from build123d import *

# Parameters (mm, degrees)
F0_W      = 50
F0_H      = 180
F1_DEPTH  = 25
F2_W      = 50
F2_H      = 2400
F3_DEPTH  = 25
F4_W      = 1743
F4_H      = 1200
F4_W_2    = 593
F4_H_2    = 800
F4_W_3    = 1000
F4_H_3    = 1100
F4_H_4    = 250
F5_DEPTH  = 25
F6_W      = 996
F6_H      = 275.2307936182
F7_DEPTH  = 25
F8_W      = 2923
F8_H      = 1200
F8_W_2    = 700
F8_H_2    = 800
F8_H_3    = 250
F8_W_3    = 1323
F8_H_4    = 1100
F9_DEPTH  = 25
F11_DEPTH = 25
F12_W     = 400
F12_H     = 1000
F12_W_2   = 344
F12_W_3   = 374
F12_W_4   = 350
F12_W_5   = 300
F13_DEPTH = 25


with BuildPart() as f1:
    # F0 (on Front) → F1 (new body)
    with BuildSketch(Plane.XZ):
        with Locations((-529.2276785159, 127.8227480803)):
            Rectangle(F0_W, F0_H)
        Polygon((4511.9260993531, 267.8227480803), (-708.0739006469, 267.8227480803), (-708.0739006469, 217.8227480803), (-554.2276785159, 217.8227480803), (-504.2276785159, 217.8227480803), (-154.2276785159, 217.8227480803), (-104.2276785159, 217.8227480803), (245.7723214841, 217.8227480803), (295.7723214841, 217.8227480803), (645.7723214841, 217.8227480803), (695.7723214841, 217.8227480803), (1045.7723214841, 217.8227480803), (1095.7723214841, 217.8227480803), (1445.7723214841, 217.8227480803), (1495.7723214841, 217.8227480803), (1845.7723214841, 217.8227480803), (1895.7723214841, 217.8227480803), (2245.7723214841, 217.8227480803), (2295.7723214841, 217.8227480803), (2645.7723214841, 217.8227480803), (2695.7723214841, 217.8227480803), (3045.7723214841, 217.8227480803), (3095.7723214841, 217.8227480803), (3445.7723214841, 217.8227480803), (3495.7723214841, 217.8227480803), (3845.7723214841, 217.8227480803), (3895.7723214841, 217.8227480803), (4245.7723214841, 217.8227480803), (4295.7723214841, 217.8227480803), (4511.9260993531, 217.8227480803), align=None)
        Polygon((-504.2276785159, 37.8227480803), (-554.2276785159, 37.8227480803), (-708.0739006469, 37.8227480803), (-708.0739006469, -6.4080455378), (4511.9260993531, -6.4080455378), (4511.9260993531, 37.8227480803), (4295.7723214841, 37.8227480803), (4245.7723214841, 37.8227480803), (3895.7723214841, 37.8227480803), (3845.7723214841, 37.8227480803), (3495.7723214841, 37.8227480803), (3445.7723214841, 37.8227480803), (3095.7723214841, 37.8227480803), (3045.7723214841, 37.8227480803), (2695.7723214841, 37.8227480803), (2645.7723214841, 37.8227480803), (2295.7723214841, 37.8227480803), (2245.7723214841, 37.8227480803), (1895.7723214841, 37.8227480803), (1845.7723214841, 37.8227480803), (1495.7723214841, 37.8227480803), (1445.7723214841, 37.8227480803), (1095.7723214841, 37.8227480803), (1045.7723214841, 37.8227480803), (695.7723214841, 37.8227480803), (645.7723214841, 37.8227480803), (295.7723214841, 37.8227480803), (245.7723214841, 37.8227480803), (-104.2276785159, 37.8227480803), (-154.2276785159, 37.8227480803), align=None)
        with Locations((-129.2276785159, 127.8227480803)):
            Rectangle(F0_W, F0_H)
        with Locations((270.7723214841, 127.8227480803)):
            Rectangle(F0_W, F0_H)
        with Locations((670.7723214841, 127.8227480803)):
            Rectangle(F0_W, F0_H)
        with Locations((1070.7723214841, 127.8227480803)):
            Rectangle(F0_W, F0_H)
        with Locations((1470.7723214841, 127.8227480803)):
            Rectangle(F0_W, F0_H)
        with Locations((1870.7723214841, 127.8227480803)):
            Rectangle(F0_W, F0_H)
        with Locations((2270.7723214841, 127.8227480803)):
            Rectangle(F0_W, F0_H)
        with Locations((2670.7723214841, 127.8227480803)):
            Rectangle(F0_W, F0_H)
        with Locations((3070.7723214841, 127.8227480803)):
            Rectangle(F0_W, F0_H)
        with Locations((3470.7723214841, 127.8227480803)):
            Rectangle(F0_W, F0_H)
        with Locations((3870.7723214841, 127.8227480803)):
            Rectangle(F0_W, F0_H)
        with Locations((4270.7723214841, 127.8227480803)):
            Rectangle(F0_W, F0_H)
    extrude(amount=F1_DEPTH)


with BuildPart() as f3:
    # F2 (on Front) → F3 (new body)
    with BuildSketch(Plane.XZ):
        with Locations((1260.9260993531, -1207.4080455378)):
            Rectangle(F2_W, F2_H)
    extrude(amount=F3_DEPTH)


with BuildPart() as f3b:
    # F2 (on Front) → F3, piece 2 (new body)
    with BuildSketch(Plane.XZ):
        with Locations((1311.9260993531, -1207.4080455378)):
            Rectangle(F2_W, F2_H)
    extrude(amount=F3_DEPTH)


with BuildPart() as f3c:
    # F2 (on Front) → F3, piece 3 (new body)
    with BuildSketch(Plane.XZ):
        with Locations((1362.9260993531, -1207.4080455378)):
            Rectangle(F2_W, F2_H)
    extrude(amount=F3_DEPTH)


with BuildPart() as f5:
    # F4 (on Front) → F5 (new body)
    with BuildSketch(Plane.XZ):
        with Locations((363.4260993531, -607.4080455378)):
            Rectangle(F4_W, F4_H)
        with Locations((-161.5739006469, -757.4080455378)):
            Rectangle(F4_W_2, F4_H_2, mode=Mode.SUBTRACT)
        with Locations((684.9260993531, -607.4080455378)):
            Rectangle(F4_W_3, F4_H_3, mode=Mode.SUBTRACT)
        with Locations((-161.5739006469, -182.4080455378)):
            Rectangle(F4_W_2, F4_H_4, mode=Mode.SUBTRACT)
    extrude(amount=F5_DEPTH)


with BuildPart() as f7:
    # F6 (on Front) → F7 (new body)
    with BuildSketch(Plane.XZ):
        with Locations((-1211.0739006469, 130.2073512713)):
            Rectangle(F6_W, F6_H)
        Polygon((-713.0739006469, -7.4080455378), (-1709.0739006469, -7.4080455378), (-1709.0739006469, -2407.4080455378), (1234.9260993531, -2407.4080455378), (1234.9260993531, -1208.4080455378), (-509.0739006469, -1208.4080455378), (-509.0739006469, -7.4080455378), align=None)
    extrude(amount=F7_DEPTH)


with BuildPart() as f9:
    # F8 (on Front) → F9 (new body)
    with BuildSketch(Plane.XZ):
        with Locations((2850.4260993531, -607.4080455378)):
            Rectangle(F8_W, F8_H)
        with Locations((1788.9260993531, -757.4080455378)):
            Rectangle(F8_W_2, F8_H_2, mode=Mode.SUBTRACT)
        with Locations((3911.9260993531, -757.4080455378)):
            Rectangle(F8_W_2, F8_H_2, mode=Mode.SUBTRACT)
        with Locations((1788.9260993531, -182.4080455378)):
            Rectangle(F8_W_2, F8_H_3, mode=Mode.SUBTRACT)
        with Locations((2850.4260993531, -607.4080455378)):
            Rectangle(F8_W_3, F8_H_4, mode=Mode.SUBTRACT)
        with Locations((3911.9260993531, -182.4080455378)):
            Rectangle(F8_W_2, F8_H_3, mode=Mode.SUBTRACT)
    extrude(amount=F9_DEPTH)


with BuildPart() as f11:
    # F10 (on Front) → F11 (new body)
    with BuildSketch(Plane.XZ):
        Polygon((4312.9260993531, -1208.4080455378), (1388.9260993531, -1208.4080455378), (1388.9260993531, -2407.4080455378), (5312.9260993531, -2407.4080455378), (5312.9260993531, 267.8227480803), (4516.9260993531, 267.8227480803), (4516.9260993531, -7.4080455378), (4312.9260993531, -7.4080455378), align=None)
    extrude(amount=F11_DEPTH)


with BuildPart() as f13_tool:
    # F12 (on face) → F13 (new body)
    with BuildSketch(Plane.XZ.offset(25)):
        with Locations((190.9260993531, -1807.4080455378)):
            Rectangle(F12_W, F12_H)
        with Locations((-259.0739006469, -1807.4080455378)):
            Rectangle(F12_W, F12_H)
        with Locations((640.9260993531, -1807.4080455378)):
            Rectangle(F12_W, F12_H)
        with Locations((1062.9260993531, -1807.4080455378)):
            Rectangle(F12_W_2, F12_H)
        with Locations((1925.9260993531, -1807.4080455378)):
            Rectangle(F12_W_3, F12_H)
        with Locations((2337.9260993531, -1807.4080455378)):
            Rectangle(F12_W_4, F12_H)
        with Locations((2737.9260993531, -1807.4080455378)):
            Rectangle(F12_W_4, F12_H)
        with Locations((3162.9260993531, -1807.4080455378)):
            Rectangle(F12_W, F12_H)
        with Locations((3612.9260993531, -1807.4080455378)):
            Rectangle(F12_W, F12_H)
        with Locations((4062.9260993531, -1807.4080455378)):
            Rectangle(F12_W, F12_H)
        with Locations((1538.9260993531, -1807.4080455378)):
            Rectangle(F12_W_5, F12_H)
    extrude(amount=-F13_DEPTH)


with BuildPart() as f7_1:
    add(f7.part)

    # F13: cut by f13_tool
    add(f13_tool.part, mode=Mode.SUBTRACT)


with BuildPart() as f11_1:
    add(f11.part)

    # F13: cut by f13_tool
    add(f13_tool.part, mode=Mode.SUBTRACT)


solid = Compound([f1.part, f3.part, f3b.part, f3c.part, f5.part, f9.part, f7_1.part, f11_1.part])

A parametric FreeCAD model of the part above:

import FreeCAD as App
import Part
import Sketcher

V = App.Vector
Q = App.Units.Quantity


def add_polygon(sketch, points):
    """Adds a closed chain of lines whose ends are joined by coincident constraints."""
    first, n = sketch.GeometryCount, len(points)
    for a, b in zip(points, points[1:] + points[:1]):
        sketch.addGeometry(Part.LineSegment(App.Vector(*a, 0), App.Vector(*b, 0)), False)
    for i in range(n):
        sketch.addConstraint(Sketcher.Constraint("Coincident", first + i, 2, first + (i + 1) % n, 1))

doc = App.newDocument("Part")
params = doc.addObject("Spreadsheet::Sheet", "Params")
for row, (alias, value) in enumerate([
    ("sketch1_width", "5220 mm"),
    ("sketch1_width2", "350 mm"),
    ("sketch1_height", "180 mm"),
    ("sketch1_height2", "50 mm"),
    ("pad1_length", "25 mm"),
    ("sketch2_width", "50 mm"),
    ("sketch2_height", "2400 mm"),
    ("pad2_length", "25 mm"),
    ("sketch3_width", "50 mm"),
    ("sketch3_height", "2400 mm"),
    ("pad3_length", "25 mm"),
    ("sketch4_width", "50 mm"),
    ("sketch4_height", "2400 mm"),
    ("pad4_length", "25 mm"),
    ("sketch5_width", "1743 mm"),
    ("sketch5_width2", "593 mm"),
    ("sketch5_width3", "1000 mm"),
    ("sketch5_height", "1200 mm"),
    ("sketch5_height2", "800 mm"),
    ("pad5_length", "25 mm"),
    ("sketch6_width", "2944 mm"),
    ("sketch6_width2", "1744 mm"),
    ("sketch6_width3", "204 mm"),
    ("sketch6_height", "1199 mm"),
    ("sketch6_height2", "1201 mm"),
    ("pad6_length", "25 mm"),
    ("sketch7_width", "2923 mm"),
    ("sketch7_width2", "700 mm"),
    ("sketch7_width3", "1323 mm"),
    ("sketch7_height", "1200 mm"),
    ("sketch7_height2", "800 mm"),
    ("pad7_length", "25 mm"),
    ("sketch8_width", "2924 mm"),
    ("sketch8_width2", "3924 mm"),
    ("sketch8_width3", "796 mm"),
    ("sketch8_height", "1199 mm"),
    ("sketch8_height2", "1201 mm"),
    ("pad8_length", "25 mm"),
    ("sketch9_width", "400 mm"),
    ("sketch9_width2", "344 mm"),
    ("sketch9_width3", "374 mm"),
    ("sketch9_width4", "350 mm"),
    ("sketch9_width5", "300 mm"),
    ("pad9_length", "25 mm"),
], start=1):
    params.set(f"A{row}", alias)
    params.set(f"B{row}", "=" + value)
    params.setAlias(f"B{row}", alias)

body = doc.addObject("PartDesign::Body", "Body")

# Sketch on XZ plane
sketch1 = doc.addObject("Sketcher::SketchObject", "Sketch")
body.addObject(sketch1)
sketch1.AttachmentSupport = (doc.XZ_Plane, [""])
sketch1.MapMode = "FlatFace"
add_polygon(sketch1, [(-554.227679, 217.822748), (-554.227679, 37.822748), (-708.073901, 37.822748), (-708.073901, -6.408046), (4511.926099, -6.408046), (4511.926099, 37.822748), (4295.772321, 37.822748), (4295.772321, 217.822748), (4511.926099, 217.822748), (4511.926099, 267.822748), (-708.073901, 267.822748), (-708.073901, 217.822748)])  # lines 0-11
add_polygon(sketch1, [(4245.772321, 37.822748), (3895.772321, 37.822748), (3895.772321, 217.822748), (4245.772321, 217.822748)])  # lines 12-15
add_polygon(sketch1, [(3845.772321, 37.822748), (3495.772321, 37.822748), (3495.772321, 217.822748), (3845.772321, 217.822748)])  # lines 16-19
add_polygon(sketch1, [(3445.772321, 37.822748), (3095.772321, 37.822748), (3095.772321, 217.822748), (3445.772321, 217.822748)])  # lines 20-23
add_polygon(sketch1, [(3045.772321, 37.822748), (2695.772321, 37.822748), (2695.772321, 217.822748), (3045.772321, 217.822748)])  # lines 24-27
add_polygon(sketch1, [(2645.772321, 37.822748), (2295.772321, 37.822748), (2295.772321, 217.822748), (2645.772321, 217.822748)])  # lines 28-31
add_polygon(sketch1, [(2245.772321, 37.822748), (1895.772321, 37.822748), (1895.772321, 217.822748), (2245.772321, 217.822748)])  # lines 32-35
add_polygon(sketch1, [(1845.772321, 37.822748), (1495.772321, 37.822748), (1495.772321, 217.822748), (1845.772321, 217.822748)])  # lines 36-39
add_polygon(sketch1, [(1445.772321, 37.822748), (1095.772321, 37.822748), (1095.772321, 217.822748), (1445.772321, 217.822748)])  # lines 40-43
add_polygon(sketch1, [(1045.772321, 37.822748), (695.772321, 37.822748), (695.772321, 217.822748), (1045.772321, 217.822748)])  # lines 44-47
add_polygon(sketch1, [(645.772321, 37.822748), (295.772321, 37.822748), (295.772321, 217.822748), (645.772321, 217.822748)])  # lines 48-51
add_polygon(sketch1, [(245.772321, 37.822748), (-104.227679, 37.822748), (-104.227679, 217.822748), (245.772321, 217.822748)])  # lines 52-55
add_polygon(sketch1, [(-154.227679, 37.822748), (-504.227679, 37.822748), (-504.227679, 217.822748), (-154.227679, 217.822748)])  # lines 56-59
sketch1.addConstraint([
    Sketcher.Constraint("Vertical", 0),
    Sketcher.Constraint("Horizontal", 1),
    Sketcher.Constraint("Vertical", 2),
    Sketcher.Constraint("Horizontal", 3),
    Sketcher.Constraint("Vertical", 4),
    Sketcher.Constraint("Horizontal", 5),
    Sketcher.Constraint("Vertical", 6),
    Sketcher.Constraint("Horizontal", 7),
    Sketcher.Constraint("Vertical", 8),
    Sketcher.Constraint("Horizontal", 9),
    Sketcher.Constraint("Vertical", 10),
    Sketcher.Constraint("Horizontal", 11),
    Sketcher.Constraint("Horizontal", 12),
    Sketcher.Constraint("Vertical", 13),
    Sketcher.Constraint("Horizontal", 14),
    Sketcher.Constraint("Vertical", 15),
    Sketcher.Constraint("Horizontal", 16),
    Sketcher.Constraint("Vertical", 17),
    Sketcher.Constraint("Horizontal", 18),
    Sketcher.Constraint("Vertical", 19),
    Sketcher.Constraint("Horizontal", 20),
    Sketcher.Constraint("Vertical", 21),
    Sketcher.Constraint("Horizontal", 22),
    Sketcher.Constraint("Vertical", 23),
    Sketcher.Constraint("Horizontal", 24),
    Sketcher.Constraint("Vertical", 25),
    Sketcher.Constraint("Horizontal", 26),
    Sketcher.Constraint("Vertical", 27),
    Sketcher.Constraint("Horizontal", 28),
    Sketcher.Constraint("Vertical", 29),
    Sketcher.Constraint("Horizontal", 30),
    Sketcher.Constraint("Vertical", 31),
    Sketcher.Constraint("Horizontal", 32),
    Sketcher.Constraint("Vertical", 33),
    Sketcher.Constraint("Horizontal", 34),
    Sketcher.Constraint("Vertical", 35),
    Sketcher.Constraint("Horizontal", 36),
    Sketcher.Constraint("Vertical", 37),
    Sketcher.Constraint("Horizontal", 38),
    Sketcher.Constraint("Vertical", 39),
    Sketcher.Constraint("Horizontal", 40),
    Sketcher.Constraint("Vertical", 41),
    Sketcher.Constraint("Horizontal", 42),
    Sketcher.Constraint("Vertical", 43),
    Sketcher.Constraint("Horizontal", 44),
    Sketcher.Constraint("Vertical", 45),
    Sketcher.Constraint("Horizontal", 46),
    Sketcher.Constraint("Vertical", 47),
    Sketcher.Constraint("Horizontal", 48),
    Sketcher.Constraint("Vertical", 49),
    Sketcher.Constraint("Horizontal", 50),
    Sketcher.Constraint("Vertical", 51),
    Sketcher.Constraint("Horizontal", 52),
    Sketcher.Constraint("Vertical", 53),
    Sketcher.Constraint("Horizontal", 54),
    Sketcher.Constraint("Vertical", 55),
    Sketcher.Constraint("Horizontal", 56),
    Sketcher.Constraint("Vertical", 57),
    Sketcher.Constraint("Horizontal", 58),
    Sketcher.Constraint("Vertical", 59),
    Sketcher.Constraint("Horizontal", 1, 2, 4, 2),
    Sketcher.Constraint("Horizontal", 7, 2, 10, 2),
    Sketcher.Constraint("Horizontal", 5, 2, 12, 2),
    Sketcher.Constraint("Horizontal", 11, 2, 13, 2),
    Sketcher.Constraint("Horizontal", 15, 2, 16, 2),
    Sketcher.Constraint("Horizontal", 14, 2, 17, 2),
    Sketcher.Constraint("Horizontal", 19, 2, 20, 2),
    Sketcher.Constraint("Horizontal", 18, 2, 21, 2),
    Sketcher.Constraint("Horizontal", 23, 2, 24, 2),
    Sketcher.Constraint("Horizontal", 22, 2, 25, 2),
    Sketcher.Constraint("Horizontal", 27, 2, 28, 2),
    Sketcher.Constraint("Horizontal", 26, 2, 29, 2),
    Sketcher.Constraint("Horizontal", 31, 2, 32, 2),
    Sketcher.Constraint("Horizontal", 30, 2, 33, 2),
    Sketcher.Constraint("Horizontal", 35, 2, 36, 2),
    Sketcher.Constraint("Horizontal", 34, 2, 37, 2),
    Sketcher.Constraint("Horizontal", 39, 2, 40, 2),
    Sketcher.Constraint("Horizontal", 38, 2, 41, 2),
    Sketcher.Constraint("Horizontal", 43, 2, 44, 2),
    Sketcher.Constraint("Horizontal", 42, 2, 45, 2),
    Sketcher.Constraint("Horizontal", 47, 2, 48, 2),
    Sketcher.Constraint("Horizontal", 46, 2, 49, 2),
    Sketcher.Constraint("Horizontal", 51, 2, 52, 2),
    Sketcher.Constraint("Horizontal", 50, 2, 53, 2),
    Sketcher.Constraint("Horizontal", 55, 2, 56, 2),
    Sketcher.Constraint("Horizontal", 54, 2, 57, 2),
    Sketcher.Constraint("Vertical", 4, 2, 7, 2),
    Sketcher.Constraint("Vertical", 2, 2, 9, 2),
    Sketcher.Constraint("Equal", 14, 16),
    Sketcher.Constraint("Equal", 18, 20),
    Sketcher.Constraint("Equal", 22, 24),
    Sketcher.Constraint("Equal", 26, 28),
    Sketcher.Constraint("Equal", 30, 32),
    Sketcher.Constraint("Equal", 34, 36),
    Sketcher.Constraint("Equal", 38, 40),
    Sketcher.Constraint("Equal", 42, 44),
    Sketcher.Constraint("Equal", 46, 48),
    Sketcher.Constraint("Equal", 50, 52),
    Sketcher.Constraint("Equal", 54, 56),
    Sketcher.Constraint("DistanceX", 3, 1, 3, 2, Q("5220 mm")),
    Sketcher.Constraint("DistanceX", 12, 2, 12, 1, Q("350 mm")),
    Sketcher.Constraint("DistanceY", 0, 2, 0, 1, Q("180 mm")),
    Sketcher.Constraint("DistanceY", 8, 1, 8, 2, Q("50 mm")),
    Sketcher.Constraint("DistanceX", 0, 2, 5, 2, Q("4850 mm")),
    Sketcher.Constraint("DistanceX", 12, 2, 5, 2, Q("400 mm")),
    Sketcher.Constraint("DistanceX", 16, 2, 12, 2, Q("400 mm")),
    Sketcher.Constraint("DistanceX", 20, 2, 16, 2, Q("400 mm")),
    Sketcher.Constraint("DistanceX", 24, 2, 20, 2, Q("400 mm")),
    Sketcher.Constraint("DistanceX", 28, 2, 24, 2, Q("400 mm")),
    Sketcher.Constraint("DistanceX", 32, 2, 28, 2, Q("400 mm")),
    Sketcher.Constraint("DistanceX", 36, 2, 32, 2, Q("400 mm")),
    Sketcher.Constraint("DistanceX", 40, 2, 36, 2, Q("400 mm")),
    Sketcher.Constraint("DistanceX", 44, 2, 40, 2, Q("400 mm")),
    Sketcher.Constraint("DistanceX", 48, 2, 44, 2, Q("400 mm")),
    Sketcher.Constraint("DistanceX", 52, 2, 48, 2, Q("400 mm")),
    Sketcher.Constraint("DistanceX", 0, 2, 56, 2, Q("50 mm")),
    Sketcher.Constraint("DistanceX", 1, 2, -1, 1, Q("708.073901 mm")),
    Sketcher.Constraint("DistanceX", 1, 2, 1, 1, Q("153.846222 mm")),
    Sketcher.Constraint("DistanceY", 2, 2, 2, 1, Q("44.230794 mm")),
    Sketcher.Constraint("DistanceY", -1, 1, 0, 2, Q("37.822748 mm")),
])
sketch1.setExpression("Constraints[159]", "Params.sketch1_width")
sketch1.setExpression("Constraints[160]", "Params.sketch1_width2")
sketch1.setExpression("Constraints[161]", "Params.sketch1_height")
sketch1.setExpression("Constraints[162]", "Params.sketch1_height2")
pad1 = doc.addObject("PartDesign::Pad", "Pad")
body.addObject(pad1)
pad1.Profile = sketch1
pad1.setExpression("Length", "Params.pad1_length")
body2 = doc.addObject("PartDesign::Body", "Body001")

# Sketch on XZ plane
sketch2 = doc.addObject("Sketcher::SketchObject", "Sketch001")
body2.addObject(sketch2)
sketch2.AttachmentSupport = (doc.getObject("XZ_Plane001"), [""])
sketch2.MapMode = "FlatFace"
add_polygon(sketch2, [(1235.926099, -7.408046), (1235.926099, -2407.408046), (1285.926099, -2407.408046), (1285.926099, -7.408046)])  # lines 0-3
sketch2.addConstraint([
    Sketcher.Constraint("Vertical", 0),
    Sketcher.Constraint("Horizontal", 1),
    Sketcher.Constraint("Vertical", 2),
    Sketcher.Constraint("Horizontal", 3),
    Sketcher.Constraint("DistanceX", 1, 1, 1, 2, Q("50 mm")),
    Sketcher.Constraint("DistanceY", 0, 2, 0, 1, Q("2400 mm")),
    Sketcher.Constraint("DistanceX", -1, 1, 0, 2, Q("1235.926099 mm")),
    Sketcher.Constraint("DistanceY", 0, 2, -1, 1, Q("2407.408046 mm")),
])
sketch2.setExpression("Constraints[8]", "Params.sketch2_width")
sketch2.setExpression("Constraints[9]", "Params.sketch2_height")
pad2 = doc.addObject("PartDesign::Pad", "Pad001")
body2.addObject(pad2)
pad2.Profile = sketch2
pad2.setExpression("Length", "Params.pad2_length")
body3 = doc.addObject("PartDesign::Body", "Body002")

# Sketch on XZ plane
sketch3 = doc.addObject("Sketcher::SketchObject", "Sketch002")
body3.addObject(sketch3)
sketch3.AttachmentSupport = (doc.getObject("XZ_Plane002"), [""])
sketch3.MapMode = "FlatFace"
add_polygon(sketch3, [(1286.926099, -7.408046), (1286.926099, -2407.408046), (1336.926099, -2407.408046), (1336.926099, -7.408046)])  # lines 0-3
sketch3.addConstraint([
    Sketcher.Constraint("Vertical", 0),
    Sketcher.Constraint("Horizontal", 1),
    Sketcher.Constraint("Vertical", 2),
    Sketcher.Constraint("Horizontal", 3),
    Sketcher.Constraint("DistanceX", 1, 1, 1, 2, Q("50 mm")),
    Sketcher.Constraint("DistanceY", 0, 2, 0, 1, Q("2400 mm")),
    Sketcher.Constraint("DistanceX", -1, 1, 0, 2, Q("1286.926099 mm")),
    Sketcher.Constraint("DistanceY", 0, 2, -1, 1, Q("2407.408046 mm")),
])
sketch3.setExpression("Constraints[8]", "Params.sketch3_width")
sketch3.setExpression("Constraints[9]", "Params.sketch3_height")
pad3 = doc.addObject("PartDesign::Pad", "Pad002")
body3.addObject(pad3)
pad3.Profile = sketch3
pad3.setExpression("Length", "Params.pad3_length")
body4 = doc.addObject("PartDesign::Body", "Body003")

# Sketch on XZ plane
sketch4 = doc.addObject("Sketcher::SketchObject", "Sketch003")
body4.addObject(sketch4)
sketch4.AttachmentSupport = (doc.getObject("XZ_Plane003"), [""])
sketch4.MapMode = "FlatFace"
add_polygon(sketch4, [(1337.926099, -7.408046), (1337.926099, -2407.408046), (1387.926099, -2407.408046), (1387.926099, -7.408046)])  # lines 0-3
sketch4.addConstraint([
    Sketcher.Constraint("Vertical", 0),
    Sketcher.Constraint("Horizontal", 1),
    Sketcher.Constraint("Vertical", 2),
    Sketcher.Constraint("Horizontal", 3),
    Sketcher.Constraint("DistanceX", 1, 1, 1, 2, Q("50 mm")),
    Sketcher.Constraint("DistanceY", 0, 2, 0, 1, Q("2400 mm")),
    Sketcher.Constraint("DistanceX", -1, 1, 0, 2, Q("1337.926099 mm")),
    Sketcher.Constraint("DistanceY", 0, 2, -1, 1, Q("2407.408046 mm")),
])
sketch4.setExpression("Constraints[8]", "Params.sketch4_width")
sketch4.setExpression("Constraints[9]", "Params.sketch4_height")
pad4 = doc.addObject("PartDesign::Pad", "Pad003")
body4.addObject(pad4)
pad4.Profile = sketch4
pad4.setExpression("Length", "Params.pad4_length")
body5 = doc.addObject("PartDesign::Body", "Body004")

# Sketch on XZ plane
sketch5 = doc.addObject("Sketcher::SketchObject", "Sketch004")
body5.addObject(sketch5)
sketch5.AttachmentSupport = (doc.getObject("XZ_Plane004"), [""])
sketch5.MapMode = "FlatFace"
add_polygon(sketch5, [(-508.073901, -7.408046), (-508.073901, -1207.408046), (1234.926099, -1207.408046), (1234.926099, -7.408046)])  # lines 0-3
add_polygon(sketch5, [(134.926099, -1157.408046), (-458.073901, -1157.408046), (-458.073901, -357.408046), (134.926099, -357.408046)])  # lines 4-7
add_polygon(sketch5, [(134.926099, -307.408046), (-458.073901, -307.408046), (-458.073901, -57.408046), (134.926099, -57.408046)])  # lines 8-11
add_polygon(sketch5, [(1184.926099, -1157.408046), (184.926099, -1157.408046), (184.926099, -57.408046), (1184.926099, -57.408046)])  # lines 12-15
sketch5.addConstraint([
    Sketcher.Constraint("Vertical", 0),
    Sketcher.Constraint("Horizontal", 1),
    Sketcher.Constraint("Vertical", 2),
    Sketcher.Constraint("Horizontal", 3),
    Sketcher.Constraint("Horizontal", 4),
    Sketcher.Constraint("Vertical", 5),
    Sketcher.Constraint("Horizontal", 6),
    Sketcher.Constraint("Vertical", 7),
    Sketcher.Constraint("Horizontal", 8),
    Sketcher.Constraint("Vertical", 9),
    Sketcher.Constraint("Horizontal", 10),
    Sketcher.Constraint("Vertical", 11),
    Sketcher.Constraint("Horizontal", 12),
    Sketcher.Constraint("Vertical", 13),
    Sketcher.Constraint("Horizontal", 14),
    Sketcher.Constraint("Vertical", 15),
    Sketcher.Constraint("Horizontal", 7, 2, 12, 2),
    Sketcher.Constraint("Horizontal", 10, 2, 13, 2),
    Sketcher.Constraint("Vertical", 5, 2, 8, 2),
    Sketcher.Constraint("Vertical", 7, 2, 10, 2),
    Sketcher.Constraint("DistanceX", 1, 1, 1, 2, Q("1743 mm")),
    Sketcher.Constraint("DistanceX", 4, 2, 4, 1, Q("593 mm")),
    Sketcher.Constraint("DistanceX", 12, 2, 12, 1, Q("1000 mm")),
    Sketcher.Constraint("DistanceY", 0, 2, 0, 1, Q("1200 mm")),
    Sketcher.Constraint("DistanceY", 5, 1, 5, 2, Q("800 mm")),
    Sketcher.Constraint("DistanceY", 9, 1, 9, 2, Q("250 mm")),
    Sketcher.Constraint("DistanceY", 13, 1, 13, 2, Q("1100 mm")),
    Sketcher.Constraint("DistanceX", 0, 2, 4, 2, Q("50 mm")),
    Sketcher.Constraint("DistanceY", 0, 2, 4, 2, Q("50 mm")),
    Sketcher.Constraint("DistanceX", 7, 2, 12, 2, Q("50 mm")),
    Sketcher.Constraint("DistanceX", 0, 2, -1, 1, Q("508.073901 mm")),
    Sketcher.Constraint("DistanceY", 0, 2, -1, 1, Q("1207.408046 mm")),
])
sketch5.setExpression("Constraints[36]", "Params.sketch5_width")
sketch5.setExpression("Constraints[37]", "Params.sketch5_width2")
sketch5.setExpression("Constraints[38]", "Params.sketch5_width3")
sketch5.setExpression("Constraints[39]", "Params.sketch5_height")
sketch5.setExpression("Constraints[40]", "Params.sketch5_height2")
pad5 = doc.addObject("PartDesign::Pad", "Pad004")
body5.addObject(pad5)
pad5.Profile = sketch5
pad5.setExpression("Length", "Params.pad5_length")
body6 = doc.addObject("PartDesign::Body", "Body005")

# Sketch on XZ plane
sketch6 = doc.addObject("Sketcher::SketchObject", "Sketch005")
body6.addObject(sketch6)
sketch6.AttachmentSupport = (doc.getObject("XZ_Plane005"), [""])
sketch6.MapMode = "FlatFace"
add_polygon(sketch6, [(-1709.073901, 267.822748), (-1709.073901, -2407.408046), (1234.926099, -2407.408046), (1234.926099, -1208.408046), (-509.073901, -1208.408046), (-509.073901, -7.408046), (-713.073901, -7.408046), (-713.073901, 267.822748)])  # lines 0-7
sketch6.addConstraint([
    Sketcher.Constraint("Vertical", 0),
    Sketcher.Constraint("Horizontal", 1),
    Sketcher.Constraint("Vertical", 2),
    Sketcher.Constraint("Horizontal", 3),
    Sketcher.Constraint("Vertical", 4),
    Sketcher.Constraint("Horizontal", 5),
    Sketcher.Constraint("Vertical", 6),
    Sketcher.Constraint("Horizontal", 7),
    Sketcher.Constraint("DistanceX", 1, 1, 1, 2, Q("2944 mm")),
    Sketcher.Constraint("DistanceX", 3, 2, 3, 1, Q("1744 mm")),
    Sketcher.Constraint("DistanceX", 5, 2, 5, 1, Q("204 mm")),
    Sketcher.Constraint("DistanceY", 2, 1, 2, 2, Q("1199 mm")),
    Sketcher.Constraint("DistanceY", 4, 1, 4, 2, Q("1201 mm")),
    Sketcher.Constraint("DistanceX", 0, 2, -1, 1, Q("1709.073901 mm")),
    Sketcher.Constraint("DistanceY", 0, 2, 0, 1, Q("2675.230794 mm")),
    Sketcher.Constraint("DistanceY", -1, 1, 6, 2, Q("267.822748 mm")),
])
sketch6.setExpression("Constraints[16]", "Params.sketch6_width")
sketch6.setExpression("Constraints[17]", "Params.sketch6_width2")
sketch6.setExpression("Constraints[18]", "Params.sketch6_width3")
sketch6.setExpression("Constraints[19]", "Params.sketch6_height")
sketch6.setExpression("Constraints[20]", "Params.sketch6_height2")
pad6 = doc.addObject("PartDesign::Pad", "Pad005")
body6.addObject(pad6)
pad6.Profile = sketch6
pad6.setExpression("Length", "Params.pad6_length")
body7 = doc.addObject("PartDesign::Body", "Body006")

# Sketch on XZ plane
sketch7 = doc.addObject("Sketcher::SketchObject", "Sketch006")
body7.addObject(sketch7)
sketch7.AttachmentSupport = (doc.getObject("XZ_Plane006"), [""])
sketch7.MapMode = "FlatFace"
add_polygon(sketch7, [(1388.926099, -7.408046), (1388.926099, -1207.408046), (4311.926099, -1207.408046), (4311.926099, -7.408046)])  # lines 0-3
add_polygon(sketch7, [(2138.926099, -1157.408046), (1438.926099, -1157.408046), (1438.926099, -357.408046), (2138.926099, -357.408046)])  # lines 4-7
add_polygon(sketch7, [(4261.926099, -1157.408046), (3561.926099, -1157.408046), (3561.926099, -357.408046), (4261.926099, -357.408046)])  # lines 8-11
add_polygon(sketch7, [(2138.926099, -307.408046), (1438.926099, -307.408046), (1438.926099, -57.408046), (2138.926099, -57.408046)])  # lines 12-15
add_polygon(sketch7, [(3511.926099, -1157.408046), (2188.926099, -1157.408046), (2188.926099, -57.408046), (3511.926099, -57.408046)])  # lines 16-19
add_polygon(sketch7, [(4261.926099, -307.408046), (3561.926099, -307.408046), (3561.926099, -57.408046), (4261.926099, -57.408046)])  # lines 20-23
sketch7.addConstraint([
    Sketcher.Constraint("Vertical", 0),
    Sketcher.Constraint("Horizontal", 1),
    Sketcher.Constraint("Vertical", 2),
    Sketcher.Constraint("Horizontal", 3),
    Sketcher.Constraint("Horizontal", 4),
    Sketcher.Constraint("Vertical", 5),
    Sketcher.Constraint("Horizontal", 6),
    Sketcher.Constraint("Vertical", 7),
    Sketcher.Constraint("Horizontal", 8),
    Sketcher.Constraint("Vertical", 9),
    Sketcher.Constraint("Horizontal", 10),
    Sketcher.Constraint("Vertical", 11),
    Sketcher.Constraint("Horizontal", 12),
    Sketcher.Constraint("Vertical", 13),
    Sketcher.Constraint("Horizontal", 14),
    Sketcher.Constraint("Vertical", 15),
    Sketcher.Constraint("Horizontal", 16),
    Sketcher.Constraint("Vertical", 17),
    Sketcher.Constraint("Horizontal", 18),
    Sketcher.Constraint("Vertical", 19),
    Sketcher.Constraint("Horizontal", 20),
    Sketcher.Constraint("Vertical", 21),
    Sketcher.Constraint("Horizontal", 22),
    Sketcher.Constraint("Vertical", 23),
    Sketcher.Constraint("Horizontal", 7, 2, 8, 2),
    Sketcher.Constraint("Horizontal", 6, 2, 9, 2),
    Sketcher.Constraint("Horizontal", 11, 2, 16, 2),
    Sketcher.Constraint("Horizontal", 14, 2, 17, 2),
    Sketcher.Constraint("Horizontal", 15, 2, 20, 2),
    Sketcher.Constraint("Horizontal", 18, 2, 21, 2),
    Sketcher.Constraint("Vertical", 5, 2, 12, 2),
    Sketcher.Constraint("Vertical", 7, 2, 14, 2),
    Sketcher.Constraint("Vertical", 9, 2, 20, 2),
    Sketcher.Constraint("Vertical", 11, 2, 22, 2),
    Sketcher.Constraint("Equal", 6, 8),
    Sketcher.Constraint("DistanceX", 1, 1, 1, 2, Q("2923 mm")),
    Sketcher.Constraint("DistanceX", 4, 2, 4, 1, Q("700 mm")),
    Sketcher.Constraint("DistanceX", 16, 2, 16, 1, Q("1323 mm")),
    Sketcher.Constraint("DistanceY", 0, 2, 0, 1, Q("1200 mm")),
    Sketcher.Constraint("DistanceY", 5, 1, 5, 2, Q("800 mm")),
    Sketcher.Constraint("DistanceY", 13, 1, 13, 2, Q("250 mm")),
    Sketcher.Constraint("DistanceY", 17, 1, 17, 2, Q("1100 mm")),
    Sketcher.Constraint("DistanceX", 0, 2, 4, 2, Q("50 mm")),
    Sketcher.Constraint("DistanceY", 0, 2, 4, 2, Q("50 mm")),
    Sketcher.Constraint("DistanceX", 8, 2, 1, 2, Q("750 mm")),
    Sketcher.Constraint("DistanceX", 7, 2, 16, 2, Q("50 mm")),
    Sketcher.Constraint("DistanceX", -1, 1, 0, 2, Q("1388.926099 mm")),
    Sketcher.Constraint("DistanceY", 0, 2, -1, 1, Q("1207.408046 mm")),
])
sketch7.setExpression("Constraints[59]", "Params.sketch7_width")
sketch7.setExpression("Constraints[60]", "Params.sketch7_width2")
sketch7.setExpression("Constraints[61]", "Params.sketch7_width3")
sketch7.setExpression("Constraints[62]", "Params.sketch7_height")
sketch7.setExpression("Constraints[63]", "Params.sketch7_height2")
pad7 = doc.addObject("PartDesign::Pad", "Pad006")
body7.addObject(pad7)
pad7.Profile = sketch7
pad7.setExpression("Length", "Params.pad7_length")
body8 = doc.addObject("PartDesign::Body", "Body007")

# Sketch on XZ plane
sketch8 = doc.addObject("Sketcher::SketchObject", "Sketch007")
body8.addObject(sketch8)
sketch8.AttachmentSupport = (doc.getObject("XZ_Plane007"), [""])
sketch8.MapMode = "FlatFace"
add_polygon(sketch8, [(4312.926099, -1208.408046), (1388.926099, -1208.408046), (1388.926099, -2407.408046), (5312.926099, -2407.408046), (5312.926099, 267.822748), (4516.926099, 267.822748), (4516.926099, -7.408046), (4312.926099, -7.408046)])  # lines 0-7
sketch8.addConstraint([
    Sketcher.Constraint("Horizontal", 0),
    Sketcher.Constraint("Vertical", 1),
    Sketcher.Constraint("Horizontal", 2),
    Sketcher.Constraint("Vertical", 3),
    Sketcher.Constraint("Horizontal", 4),
    Sketcher.Constraint("Vertical", 5),
    Sketcher.Constraint("Horizontal", 6),
    Sketcher.Constraint("Vertical", 7),
    Sketcher.Constraint("DistanceX", 0, 2, 0, 1, Q("2924 mm")),
    Sketcher.Constraint("DistanceX", 2, 1, 2, 2, Q("3924 mm")),
    Sketcher.Constraint("DistanceX", 4, 2, 4, 1, Q("796 mm")),
    Sketcher.Constraint("DistanceY", 1, 2, 1, 1, Q("1199 mm")),
    Sketcher.Constraint("DistanceY", 7, 2, 7, 1, Q("1201 mm")),
    Sketcher.Constraint("DistanceX", -1, 1, 0, 2, Q("1388.926099 mm")),
    Sketcher.Constraint("DistanceY", 3, 1, 3, 2, Q("2675.230794 mm")),
    Sketcher.Constraint("DistanceY", -1, 1, 3, 2, Q("267.822748 mm")),
])
sketch8.setExpression("Constraints[16]", "Params.sketch8_width")
sketch8.setExpression("Constraints[17]", "Params.sketch8_width2")
sketch8.setExpression("Constraints[18]", "Params.sketch8_width3")
sketch8.setExpression("Constraints[19]", "Params.sketch8_height")
sketch8.setExpression("Constraints[20]", "Params.sketch8_height2")
pad8 = doc.addObject("PartDesign::Pad", "Pad007")
body8.addObject(pad8)
pad8.Profile = sketch8
pad8.setExpression("Length", "Params.pad8_length")
body9 = doc.addObject("PartDesign::Body", "Body008")
body9.AllowCompound = True

# Sketch on XZ plane
sketch9 = doc.addObject("Sketcher::SketchObject", "Sketch008")
body9.addObject(sketch9)
sketch9.AttachmentSupport = (doc.getObject("XZ_Plane008"), [""])
sketch9.MapMode = "FlatFace"
sketch9.AttachmentOffset = App.Placement(V(0, 0, 25), App.Rotation())
add_polygon(sketch9, [(-9.073901, -1307.408046), (-9.073901, -2307.408046), (390.926099, -2307.408046), (390.926099, -1307.408046)])  # lines 0-3
add_polygon(sketch9, [(-459.073901, -1307.408046), (-459.073901, -2307.408046), (-59.073901, -2307.408046), (-59.073901, -1307.408046)])  # lines 4-7
add_polygon(sketch9, [(440.926099, -1307.408046), (440.926099, -2307.408046), (840.926099, -2307.408046), (840.926099, -1307.408046)])  # lines 8-11
add_polygon(sketch9, [(890.926099, -1307.408046), (890.926099, -2307.408046), (1234.926099, -2307.408046), (1234.926099, -1307.408046)])  # lines 12-15
add_polygon(sketch9, [(1738.926099, -1307.408046), (1738.926099, -2307.408046), (2112.926099, -2307.408046), (2112.926099, -1307.408046)])  # lines 16-19
add_polygon(sketch9, [(2162.926099, -1307.408046), (2162.926099, -2307.408046), (2512.926099, -2307.408046), (2512.926099, -1307.408046)])  # lines 20-23
add_polygon(sketch9, [(2562.926099, -1307.408046), (2562.926099, -2307.408046), (2912.926099, -2307.408046), (2912.926099, -1307.408046)])  # lines 24-27
add_polygon(sketch9, [(2962.926099, -1307.408046), (2962.926099, -2307.408046), (3362.926099, -2307.408046), (3362.926099, -1307.408046)])  # lines 28-31
add_polygon(sketch9, [(3412.926099, -1307.408046), (3412.926099, -2307.408046), (3812.926099, -2307.408046), (3812.926099, -1307.408046)])  # lines 32-35
add_polygon(sketch9, [(3862.926099, -1307.408046), (3862.926099, -2307.408046), (4262.926099, -2307.408046), (4262.926099, -1307.408046)])  # lines 36-39
add_polygon(sketch9, [(1388.926099, -1307.408046), (1388.926099, -2307.408046), (1688.926099, -2307.408046), (1688.926099, -1307.408046)])  # lines 40-43
sketch9.addConstraint([
    Sketcher.Constraint("Vertical", 0),
    Sketcher.Constraint("Horizontal", 1),
    Sketcher.Constraint("Vertical", 2),
    Sketcher.Constraint("Horizontal", 3),
    Sketcher.Constraint("Vertical", 4),
    Sketcher.Constraint("Horizontal", 5),
    Sketcher.Constraint("Vertical", 6),
    Sketcher.Constraint("Horizontal", 7),
    Sketcher.Constraint("Vertical", 8),
    Sketcher.Constraint("Horizontal", 9),
    Sketcher.Constraint("Vertical", 10),
    Sketcher.Constraint("Horizontal", 11),
    Sketcher.Constraint("Vertical", 12),
    Sketcher.Constraint("Horizontal", 13),
    Sketcher.Constraint("Vertical", 14),
    Sketcher.Constraint("Horizontal", 15),
    Sketcher.Constraint("Vertical", 16),
    Sketcher.Constraint("Horizontal", 17),
    Sketcher.Constraint("Vertical", 18),
    Sketcher.Constraint("Horizontal", 19),
    Sketcher.Constraint("Vertical", 20),
    Sketcher.Constraint("Horizontal", 21),
    Sketcher.Constraint("Vertical", 22),
    Sketcher.Constraint("Horizontal", 23),
    Sketcher.Constraint("Vertical", 24),
    Sketcher.Constraint("Horizontal", 25),
    Sketcher.Constraint("Vertical", 26),
    Sketcher.Constraint("Horizontal", 27),
    Sketcher.Constraint("Vertical", 28),
    Sketcher.Constraint("Horizontal", 29),
    Sketcher.Constraint("Vertical", 30),
    Sketcher.Constraint("Horizontal", 31),
    Sketcher.Constraint("Vertical", 32),
    Sketcher.Constraint("Horizontal", 33),
    Sketcher.Constraint("Vertical", 34),
    Sketcher.Constraint("Horizontal", 35),
    Sketcher.Constraint("Vertical", 36),
    Sketcher.Constraint("Horizontal", 37),
    Sketcher.Constraint("Vertical", 38),
    Sketcher.Constraint("Horizontal", 39),
    Sketcher.Constraint("Vertical", 40),
    Sketcher.Constraint("Horizontal", 41),
    Sketcher.Constraint("Vertical", 42),
    Sketcher.Constraint("Horizontal", 43),
    Sketcher.Constraint("Horizontal", 1, 2, 4, 2),
    Sketcher.Constraint("Horizontal", 3, 2, 6, 2),
    Sketcher.Constraint("Horizontal", 5, 2, 8, 2),
    Sketcher.Constraint("Horizontal", 7, 2, 10, 2),
    Sketcher.Constraint("Horizontal", 9, 2, 12, 2),
    Sketcher.Constraint("Horizontal", 11, 2, 14, 2),
    Sketcher.Constraint("Horizontal", 13, 2, 16, 2),
    Sketcher.Constraint("Horizontal", 15, 2, 18, 2),
    Sketcher.Constraint("Horizontal", 17, 2, 20, 2),
    Sketcher.Constraint("Horizontal", 19, 2, 22, 2),
    Sketcher.Constraint("Horizontal", 21, 2, 24, 2),
    Sketcher.Constraint("Horizontal", 23, 2, 26, 2),
    Sketcher.Constraint("Horizontal", 25, 2, 28, 2),
    Sketcher.Constraint("Horizontal", 27, 2, 30, 2),
    Sketcher.Constraint("Horizontal", 29, 2, 32, 2),
    Sketcher.Constraint("Horizontal", 31, 2, 34, 2),
    Sketcher.Constraint("Horizontal", 33, 2, 36, 2),
    Sketcher.Constraint("Horizontal", 35, 2, 38, 2),
    Sketcher.Constraint("Horizontal", 37, 2, 40, 2),
    Sketcher.Constraint("Horizontal", 39, 2, 42, 2),
    Sketcher.Constraint("Equal", 3, 5),
    Sketcher.Constraint("Equal", 7, 9),
    Sketcher.Constraint("Equal", 23, 25),
    Sketcher.Constraint("Equal", 11, 29),
    Sketcher.Constraint("Equal", 31, 33),
    Sketcher.Constraint("Equal", 35, 37),
    Sketcher.Constraint("DistanceX", 1, 1, 1, 2, Q("400 mm")),
    Sketcher.Constraint("DistanceX", 13, 1, 13, 2, Q("344 mm")),
    Sketcher.Constraint("DistanceX", 17, 1, 17, 2, Q("374 mm")),
    Sketcher.Constraint("DistanceX", 21, 1, 21, 2, Q("350 mm")),
    Sketcher.Constraint("DistanceX", 41, 1, 41, 2, Q("300 mm")),
    Sketcher.Constraint("DistanceY", 0, 2, 0, 1, Q("1000 mm")),
    Sketcher.Constraint("DistanceX", 4, 2, 0, 2, Q("450 mm")),
    Sketcher.Constraint("DistanceX", 1, 2, 8, 2, Q("50 mm")),
    Sketcher.Constraint("DistanceX", 9, 2, 12, 2, Q("50 mm")),
    Sketcher.Constraint("DistanceX", 13, 2, 16, 2, Q("504 mm")),
    Sketcher.Constraint("DistanceX", 17, 2, 20, 2, Q("50 mm")),
    Sketcher.Constraint("DistanceX", 21, 2, 24, 2, Q("50 mm")),
    Sketcher.Constraint("DistanceX", 25, 2, 28, 2, Q("50 mm")),
    Sketcher.Constraint("DistanceX", 29, 2, 32, 2, Q("50 mm")),
    Sketcher.Constraint("DistanceX", 33, 2, 36, 2, Q("50 mm")),
    Sketcher.Constraint("DistanceX", 13, 2, 40, 2, Q("154 mm")),
    Sketcher.Constraint("DistanceX", 0, 2, -1, 1, Q("9.073901 mm")),
    Sketcher.Constraint("DistanceY", 0, 2, -1, 1, Q("2307.408046 mm")),
])
sketch9.setExpression("Constraints[114]", "Params.sketch9_width")
sketch9.setExpression("Constraints[115]", "Params.sketch9_width2")
sketch9.setExpression("Constraints[116]", "Params.sketch9_width3")
sketch9.setExpression("Constraints[117]", "Params.sketch9_width4")
sketch9.setExpression("Constraints[118]", "Params.sketch9_width5")
pad9 = doc.addObject("PartDesign::Pad", "Pad008")
body9.addObject(pad9)
pad9.Profile = sketch9
pad9.setExpression("Length", "Params.pad9_length")
pad9.Reversed = True
doc.recompute()

body10 = doc.addObject("PartDesign::Body", "Body009")
body10.BaseFeature = body9
boolean = doc.addObject("PartDesign::Boolean", "Boolean")
body6.addObject(boolean)
boolean.Type = "Cut"
boolean.addObjects([body10])
doc.recompute()

boolean2 = doc.addObject("PartDesign::Boolean", "Boolean001")
body8.addObject(boolean2)
boolean2.Type = "Cut"
boolean2.addObjects([body9])

doc.recompute()
